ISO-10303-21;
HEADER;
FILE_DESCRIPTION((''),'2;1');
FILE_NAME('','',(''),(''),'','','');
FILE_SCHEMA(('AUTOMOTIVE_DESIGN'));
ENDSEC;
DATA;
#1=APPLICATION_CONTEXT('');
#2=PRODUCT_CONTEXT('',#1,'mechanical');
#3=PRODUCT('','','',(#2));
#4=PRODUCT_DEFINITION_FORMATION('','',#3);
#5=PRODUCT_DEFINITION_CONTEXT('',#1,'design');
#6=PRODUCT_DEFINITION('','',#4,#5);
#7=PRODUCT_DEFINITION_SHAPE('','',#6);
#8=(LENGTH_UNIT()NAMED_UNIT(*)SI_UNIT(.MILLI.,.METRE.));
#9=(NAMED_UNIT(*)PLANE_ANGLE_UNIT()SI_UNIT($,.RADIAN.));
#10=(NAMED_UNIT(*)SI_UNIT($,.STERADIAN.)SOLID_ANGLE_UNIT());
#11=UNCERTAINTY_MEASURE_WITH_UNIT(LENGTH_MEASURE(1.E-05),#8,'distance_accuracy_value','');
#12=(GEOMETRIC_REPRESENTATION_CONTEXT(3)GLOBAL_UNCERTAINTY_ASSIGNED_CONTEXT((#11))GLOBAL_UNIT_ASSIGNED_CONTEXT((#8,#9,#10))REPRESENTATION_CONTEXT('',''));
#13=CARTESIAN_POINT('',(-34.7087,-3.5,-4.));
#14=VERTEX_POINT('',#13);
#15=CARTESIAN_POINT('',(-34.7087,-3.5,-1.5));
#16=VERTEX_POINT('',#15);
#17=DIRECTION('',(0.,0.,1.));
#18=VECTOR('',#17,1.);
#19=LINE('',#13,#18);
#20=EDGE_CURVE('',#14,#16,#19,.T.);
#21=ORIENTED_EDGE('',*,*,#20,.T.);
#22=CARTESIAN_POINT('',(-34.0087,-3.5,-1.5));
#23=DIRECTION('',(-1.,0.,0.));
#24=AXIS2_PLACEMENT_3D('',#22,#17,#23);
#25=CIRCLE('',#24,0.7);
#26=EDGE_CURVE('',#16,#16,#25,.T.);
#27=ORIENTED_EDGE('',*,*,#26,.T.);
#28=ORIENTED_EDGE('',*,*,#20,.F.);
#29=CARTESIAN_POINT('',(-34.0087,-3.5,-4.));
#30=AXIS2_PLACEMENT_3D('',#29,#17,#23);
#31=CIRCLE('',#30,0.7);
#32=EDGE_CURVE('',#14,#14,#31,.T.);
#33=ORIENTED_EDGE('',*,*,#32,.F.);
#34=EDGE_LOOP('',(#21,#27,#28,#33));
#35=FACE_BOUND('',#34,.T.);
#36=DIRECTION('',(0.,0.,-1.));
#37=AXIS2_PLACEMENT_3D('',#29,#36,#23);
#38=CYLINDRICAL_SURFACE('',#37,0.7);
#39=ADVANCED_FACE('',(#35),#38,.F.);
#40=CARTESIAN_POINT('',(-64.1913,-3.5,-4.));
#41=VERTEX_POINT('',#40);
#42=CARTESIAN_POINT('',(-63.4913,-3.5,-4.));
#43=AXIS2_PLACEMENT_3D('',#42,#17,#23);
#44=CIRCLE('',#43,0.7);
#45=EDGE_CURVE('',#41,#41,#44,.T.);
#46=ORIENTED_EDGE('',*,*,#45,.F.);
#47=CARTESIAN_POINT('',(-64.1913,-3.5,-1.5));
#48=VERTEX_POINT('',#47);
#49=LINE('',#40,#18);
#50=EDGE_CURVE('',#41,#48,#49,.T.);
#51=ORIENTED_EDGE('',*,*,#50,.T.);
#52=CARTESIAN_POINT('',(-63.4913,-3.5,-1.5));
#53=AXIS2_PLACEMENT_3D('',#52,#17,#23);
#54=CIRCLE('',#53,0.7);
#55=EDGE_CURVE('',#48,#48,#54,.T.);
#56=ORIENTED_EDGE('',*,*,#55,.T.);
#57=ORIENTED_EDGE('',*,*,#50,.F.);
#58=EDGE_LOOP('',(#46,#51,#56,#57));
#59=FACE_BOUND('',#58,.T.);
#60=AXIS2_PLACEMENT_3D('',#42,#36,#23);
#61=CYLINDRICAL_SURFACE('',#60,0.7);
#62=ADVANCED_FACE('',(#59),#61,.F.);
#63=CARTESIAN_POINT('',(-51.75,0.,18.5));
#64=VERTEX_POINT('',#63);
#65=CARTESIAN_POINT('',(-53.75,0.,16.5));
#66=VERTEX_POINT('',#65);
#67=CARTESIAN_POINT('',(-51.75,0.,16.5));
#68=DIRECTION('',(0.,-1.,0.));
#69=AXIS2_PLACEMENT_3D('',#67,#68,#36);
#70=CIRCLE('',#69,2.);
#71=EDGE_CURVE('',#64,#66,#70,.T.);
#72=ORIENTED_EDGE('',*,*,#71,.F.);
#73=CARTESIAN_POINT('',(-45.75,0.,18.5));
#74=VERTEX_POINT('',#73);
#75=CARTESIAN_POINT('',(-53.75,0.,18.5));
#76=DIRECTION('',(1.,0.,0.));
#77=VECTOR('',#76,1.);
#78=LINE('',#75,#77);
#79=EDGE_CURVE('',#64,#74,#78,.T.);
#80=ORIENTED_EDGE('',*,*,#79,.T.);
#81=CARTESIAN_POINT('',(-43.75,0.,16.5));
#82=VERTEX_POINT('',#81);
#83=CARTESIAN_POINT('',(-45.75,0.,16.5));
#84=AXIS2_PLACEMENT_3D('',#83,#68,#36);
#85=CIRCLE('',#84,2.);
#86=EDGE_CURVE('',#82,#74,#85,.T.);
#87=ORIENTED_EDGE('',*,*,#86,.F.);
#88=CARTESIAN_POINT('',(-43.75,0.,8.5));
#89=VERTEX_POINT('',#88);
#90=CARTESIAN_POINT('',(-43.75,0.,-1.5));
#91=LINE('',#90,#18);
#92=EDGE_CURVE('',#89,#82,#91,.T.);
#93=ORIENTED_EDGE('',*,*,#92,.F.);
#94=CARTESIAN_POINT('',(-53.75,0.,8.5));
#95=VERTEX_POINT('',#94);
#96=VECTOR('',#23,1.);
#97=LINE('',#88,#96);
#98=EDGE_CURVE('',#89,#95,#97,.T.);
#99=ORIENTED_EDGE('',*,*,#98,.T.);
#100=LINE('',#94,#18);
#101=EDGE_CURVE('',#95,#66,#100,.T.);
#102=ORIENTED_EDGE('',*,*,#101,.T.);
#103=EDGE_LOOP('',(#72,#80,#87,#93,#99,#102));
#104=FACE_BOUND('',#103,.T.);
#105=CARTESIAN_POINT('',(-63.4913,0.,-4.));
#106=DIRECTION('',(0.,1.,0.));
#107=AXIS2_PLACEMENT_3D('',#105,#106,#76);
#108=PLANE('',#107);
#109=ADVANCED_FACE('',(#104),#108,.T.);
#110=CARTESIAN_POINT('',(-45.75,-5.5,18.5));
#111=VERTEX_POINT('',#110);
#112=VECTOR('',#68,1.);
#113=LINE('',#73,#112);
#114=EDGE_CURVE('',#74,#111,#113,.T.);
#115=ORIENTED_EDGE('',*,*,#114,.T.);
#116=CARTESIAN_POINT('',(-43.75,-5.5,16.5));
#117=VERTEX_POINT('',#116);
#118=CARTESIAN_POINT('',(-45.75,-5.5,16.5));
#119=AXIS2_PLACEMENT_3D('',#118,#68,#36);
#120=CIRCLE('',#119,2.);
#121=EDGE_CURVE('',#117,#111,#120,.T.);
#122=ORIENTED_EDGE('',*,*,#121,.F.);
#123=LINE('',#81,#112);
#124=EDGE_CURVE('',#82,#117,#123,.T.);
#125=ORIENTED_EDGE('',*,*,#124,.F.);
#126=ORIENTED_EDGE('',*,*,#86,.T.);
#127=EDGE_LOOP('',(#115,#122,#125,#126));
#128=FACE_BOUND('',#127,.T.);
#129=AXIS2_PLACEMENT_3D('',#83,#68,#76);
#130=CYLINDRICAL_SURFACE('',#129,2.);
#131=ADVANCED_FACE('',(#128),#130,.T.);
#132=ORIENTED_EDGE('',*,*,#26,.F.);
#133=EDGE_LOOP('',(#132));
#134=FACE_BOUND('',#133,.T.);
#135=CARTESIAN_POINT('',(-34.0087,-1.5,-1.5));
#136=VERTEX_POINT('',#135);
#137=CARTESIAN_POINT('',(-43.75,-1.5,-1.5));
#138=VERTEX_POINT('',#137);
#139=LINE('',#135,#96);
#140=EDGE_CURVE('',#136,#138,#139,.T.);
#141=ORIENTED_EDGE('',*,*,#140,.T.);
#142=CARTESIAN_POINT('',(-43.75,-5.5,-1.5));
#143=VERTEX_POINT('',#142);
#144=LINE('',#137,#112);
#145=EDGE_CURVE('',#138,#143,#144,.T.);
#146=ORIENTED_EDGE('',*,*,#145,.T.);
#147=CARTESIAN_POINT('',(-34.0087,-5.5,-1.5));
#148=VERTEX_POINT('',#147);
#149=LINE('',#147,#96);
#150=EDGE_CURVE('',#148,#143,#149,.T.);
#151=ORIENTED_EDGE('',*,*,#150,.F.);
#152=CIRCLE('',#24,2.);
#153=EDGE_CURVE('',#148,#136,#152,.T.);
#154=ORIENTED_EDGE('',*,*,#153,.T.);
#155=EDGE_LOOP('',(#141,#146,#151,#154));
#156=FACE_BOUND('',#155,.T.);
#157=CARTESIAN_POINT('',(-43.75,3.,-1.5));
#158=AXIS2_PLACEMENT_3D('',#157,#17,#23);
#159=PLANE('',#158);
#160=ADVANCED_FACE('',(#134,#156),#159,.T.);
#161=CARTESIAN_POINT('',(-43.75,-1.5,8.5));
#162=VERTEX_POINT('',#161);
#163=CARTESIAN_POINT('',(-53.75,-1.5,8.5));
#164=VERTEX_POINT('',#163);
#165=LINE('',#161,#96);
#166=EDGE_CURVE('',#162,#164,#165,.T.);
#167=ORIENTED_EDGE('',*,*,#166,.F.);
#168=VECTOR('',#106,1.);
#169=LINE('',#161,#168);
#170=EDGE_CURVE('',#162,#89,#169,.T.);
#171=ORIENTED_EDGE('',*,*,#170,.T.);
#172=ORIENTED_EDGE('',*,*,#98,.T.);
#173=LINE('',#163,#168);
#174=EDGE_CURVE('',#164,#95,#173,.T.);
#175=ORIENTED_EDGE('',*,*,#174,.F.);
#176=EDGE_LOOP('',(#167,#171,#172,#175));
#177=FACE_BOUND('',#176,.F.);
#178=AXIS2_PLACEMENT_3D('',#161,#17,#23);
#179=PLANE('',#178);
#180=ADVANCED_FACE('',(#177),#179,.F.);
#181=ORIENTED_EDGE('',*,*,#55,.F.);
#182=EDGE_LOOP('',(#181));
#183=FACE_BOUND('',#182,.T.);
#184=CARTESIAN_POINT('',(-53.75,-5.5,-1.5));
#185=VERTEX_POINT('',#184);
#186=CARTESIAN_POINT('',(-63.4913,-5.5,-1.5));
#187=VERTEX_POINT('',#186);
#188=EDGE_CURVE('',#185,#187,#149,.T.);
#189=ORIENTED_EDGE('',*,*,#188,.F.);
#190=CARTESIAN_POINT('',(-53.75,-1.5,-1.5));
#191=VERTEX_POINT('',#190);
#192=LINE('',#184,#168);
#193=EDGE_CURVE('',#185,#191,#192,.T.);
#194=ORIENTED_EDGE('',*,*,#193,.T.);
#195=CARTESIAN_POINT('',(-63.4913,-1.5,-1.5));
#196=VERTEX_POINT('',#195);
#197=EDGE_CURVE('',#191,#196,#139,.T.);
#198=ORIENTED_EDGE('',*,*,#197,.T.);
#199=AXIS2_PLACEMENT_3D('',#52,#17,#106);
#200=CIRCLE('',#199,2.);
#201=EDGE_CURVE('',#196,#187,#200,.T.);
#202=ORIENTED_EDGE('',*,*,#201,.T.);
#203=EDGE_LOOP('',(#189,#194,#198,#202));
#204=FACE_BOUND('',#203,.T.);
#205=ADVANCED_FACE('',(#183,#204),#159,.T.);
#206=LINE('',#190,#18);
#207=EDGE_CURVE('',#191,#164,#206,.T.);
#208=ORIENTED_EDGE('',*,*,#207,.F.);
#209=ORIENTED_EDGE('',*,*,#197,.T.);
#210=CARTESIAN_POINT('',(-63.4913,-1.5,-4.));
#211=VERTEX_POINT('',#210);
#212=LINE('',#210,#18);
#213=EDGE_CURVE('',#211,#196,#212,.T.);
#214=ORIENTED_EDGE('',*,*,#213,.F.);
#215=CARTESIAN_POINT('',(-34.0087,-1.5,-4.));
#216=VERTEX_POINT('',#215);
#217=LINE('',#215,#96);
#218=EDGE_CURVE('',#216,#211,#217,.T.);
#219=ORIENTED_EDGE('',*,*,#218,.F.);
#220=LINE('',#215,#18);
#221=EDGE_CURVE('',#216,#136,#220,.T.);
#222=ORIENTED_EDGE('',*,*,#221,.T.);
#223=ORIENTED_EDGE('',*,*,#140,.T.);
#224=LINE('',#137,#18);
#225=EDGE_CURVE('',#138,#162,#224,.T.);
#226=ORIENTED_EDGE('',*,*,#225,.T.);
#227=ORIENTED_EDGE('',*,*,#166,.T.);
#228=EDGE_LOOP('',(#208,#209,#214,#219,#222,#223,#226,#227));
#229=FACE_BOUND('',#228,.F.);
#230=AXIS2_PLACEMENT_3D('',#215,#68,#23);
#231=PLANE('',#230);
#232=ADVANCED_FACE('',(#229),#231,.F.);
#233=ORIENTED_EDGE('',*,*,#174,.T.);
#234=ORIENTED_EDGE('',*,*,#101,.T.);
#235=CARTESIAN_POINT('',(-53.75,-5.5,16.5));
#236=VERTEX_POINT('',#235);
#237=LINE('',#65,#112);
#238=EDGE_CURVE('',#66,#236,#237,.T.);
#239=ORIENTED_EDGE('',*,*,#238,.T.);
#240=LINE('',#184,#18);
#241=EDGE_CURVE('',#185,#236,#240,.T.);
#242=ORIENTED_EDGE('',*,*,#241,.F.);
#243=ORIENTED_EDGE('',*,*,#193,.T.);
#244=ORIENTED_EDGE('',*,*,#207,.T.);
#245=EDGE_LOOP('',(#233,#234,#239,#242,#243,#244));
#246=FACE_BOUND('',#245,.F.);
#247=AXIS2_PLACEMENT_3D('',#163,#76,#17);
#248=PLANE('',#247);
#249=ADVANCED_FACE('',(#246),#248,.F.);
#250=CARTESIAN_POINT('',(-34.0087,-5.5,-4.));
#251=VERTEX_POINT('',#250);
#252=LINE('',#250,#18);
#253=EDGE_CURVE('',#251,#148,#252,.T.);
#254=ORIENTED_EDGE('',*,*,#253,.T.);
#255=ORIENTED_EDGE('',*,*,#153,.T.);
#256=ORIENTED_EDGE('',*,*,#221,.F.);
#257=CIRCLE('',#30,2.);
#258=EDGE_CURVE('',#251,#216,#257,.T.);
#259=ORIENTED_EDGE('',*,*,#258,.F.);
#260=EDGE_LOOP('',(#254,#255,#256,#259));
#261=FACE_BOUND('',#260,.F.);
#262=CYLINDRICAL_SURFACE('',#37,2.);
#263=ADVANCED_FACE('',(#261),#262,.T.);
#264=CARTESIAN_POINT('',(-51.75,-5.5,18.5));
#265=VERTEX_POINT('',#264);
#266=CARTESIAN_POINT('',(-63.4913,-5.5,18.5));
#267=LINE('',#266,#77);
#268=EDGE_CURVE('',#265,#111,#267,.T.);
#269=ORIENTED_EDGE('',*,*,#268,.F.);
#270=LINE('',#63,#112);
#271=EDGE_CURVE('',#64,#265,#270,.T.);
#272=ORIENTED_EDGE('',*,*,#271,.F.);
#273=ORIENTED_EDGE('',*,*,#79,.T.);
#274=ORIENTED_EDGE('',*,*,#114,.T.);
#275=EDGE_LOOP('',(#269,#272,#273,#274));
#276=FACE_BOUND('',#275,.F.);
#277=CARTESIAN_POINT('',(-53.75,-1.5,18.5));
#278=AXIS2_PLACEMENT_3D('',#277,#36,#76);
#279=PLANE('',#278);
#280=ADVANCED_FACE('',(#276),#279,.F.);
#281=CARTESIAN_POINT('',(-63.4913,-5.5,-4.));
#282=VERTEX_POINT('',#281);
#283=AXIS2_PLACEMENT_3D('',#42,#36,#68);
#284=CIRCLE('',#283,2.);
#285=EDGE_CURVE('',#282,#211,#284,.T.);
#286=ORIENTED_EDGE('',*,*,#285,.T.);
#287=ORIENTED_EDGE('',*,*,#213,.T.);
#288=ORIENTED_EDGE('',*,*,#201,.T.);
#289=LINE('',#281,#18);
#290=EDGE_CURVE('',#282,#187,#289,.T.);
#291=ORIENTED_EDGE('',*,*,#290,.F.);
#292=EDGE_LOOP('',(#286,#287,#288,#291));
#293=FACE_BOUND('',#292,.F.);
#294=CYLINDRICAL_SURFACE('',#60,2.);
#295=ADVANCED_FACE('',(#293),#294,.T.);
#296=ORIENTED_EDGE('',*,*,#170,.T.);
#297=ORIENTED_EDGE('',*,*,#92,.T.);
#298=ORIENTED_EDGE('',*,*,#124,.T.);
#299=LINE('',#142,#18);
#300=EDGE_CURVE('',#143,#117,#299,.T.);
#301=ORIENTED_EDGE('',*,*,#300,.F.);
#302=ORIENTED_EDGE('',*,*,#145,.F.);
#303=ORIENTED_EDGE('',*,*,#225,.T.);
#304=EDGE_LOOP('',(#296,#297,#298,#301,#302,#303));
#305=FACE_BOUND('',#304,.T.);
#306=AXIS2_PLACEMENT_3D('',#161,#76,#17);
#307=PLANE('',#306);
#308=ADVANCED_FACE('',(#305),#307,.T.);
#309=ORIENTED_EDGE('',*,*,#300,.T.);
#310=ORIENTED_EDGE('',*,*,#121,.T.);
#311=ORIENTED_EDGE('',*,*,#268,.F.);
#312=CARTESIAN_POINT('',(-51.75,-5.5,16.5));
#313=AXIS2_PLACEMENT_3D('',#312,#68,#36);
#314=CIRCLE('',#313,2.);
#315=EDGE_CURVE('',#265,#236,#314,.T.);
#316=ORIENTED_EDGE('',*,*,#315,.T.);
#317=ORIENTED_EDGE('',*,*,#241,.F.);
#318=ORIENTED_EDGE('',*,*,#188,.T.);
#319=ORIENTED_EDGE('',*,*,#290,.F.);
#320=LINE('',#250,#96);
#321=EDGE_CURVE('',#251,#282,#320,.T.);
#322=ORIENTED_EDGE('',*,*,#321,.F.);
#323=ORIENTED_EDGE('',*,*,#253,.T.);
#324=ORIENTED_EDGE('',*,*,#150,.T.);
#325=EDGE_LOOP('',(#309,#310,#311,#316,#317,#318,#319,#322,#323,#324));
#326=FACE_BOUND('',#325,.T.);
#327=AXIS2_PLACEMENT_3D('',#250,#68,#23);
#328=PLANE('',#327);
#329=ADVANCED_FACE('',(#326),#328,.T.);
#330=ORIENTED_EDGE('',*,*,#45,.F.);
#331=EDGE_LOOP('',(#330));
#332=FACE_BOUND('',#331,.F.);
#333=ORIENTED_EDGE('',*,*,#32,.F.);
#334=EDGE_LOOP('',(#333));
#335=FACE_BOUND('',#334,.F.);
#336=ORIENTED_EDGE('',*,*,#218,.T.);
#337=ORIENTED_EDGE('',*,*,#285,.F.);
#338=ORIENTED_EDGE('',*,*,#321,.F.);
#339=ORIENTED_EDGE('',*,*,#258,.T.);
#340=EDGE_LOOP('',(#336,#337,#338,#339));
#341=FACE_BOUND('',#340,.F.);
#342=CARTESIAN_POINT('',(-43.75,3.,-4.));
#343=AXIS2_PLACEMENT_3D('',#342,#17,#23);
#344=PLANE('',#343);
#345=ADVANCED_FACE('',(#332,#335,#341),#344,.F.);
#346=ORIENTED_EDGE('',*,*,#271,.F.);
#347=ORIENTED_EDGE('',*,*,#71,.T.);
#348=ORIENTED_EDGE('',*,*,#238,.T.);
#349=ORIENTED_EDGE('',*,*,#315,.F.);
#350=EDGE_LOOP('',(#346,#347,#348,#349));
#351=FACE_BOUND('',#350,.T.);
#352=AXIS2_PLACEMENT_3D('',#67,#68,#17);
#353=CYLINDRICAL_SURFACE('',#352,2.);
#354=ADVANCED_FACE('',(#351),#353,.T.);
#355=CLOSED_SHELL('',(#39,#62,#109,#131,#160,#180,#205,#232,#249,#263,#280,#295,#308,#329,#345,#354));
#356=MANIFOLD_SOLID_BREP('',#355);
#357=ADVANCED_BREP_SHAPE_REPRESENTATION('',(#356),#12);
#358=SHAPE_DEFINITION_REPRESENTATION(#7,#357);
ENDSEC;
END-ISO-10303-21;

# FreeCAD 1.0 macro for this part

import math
import FreeCAD as App
import Part
import Sketcher
from FreeCAD import Vector
Q = App.Units.Quantity


def edges_at(feature, points):
    """Names of the edges that pass closest to the given points."""
    edges = feature.Shape.Edges
    near = lambda p: min(range(len(edges)), key=lambda i: edges[i].distToShape(Part.Vertex(*p))[0])
    return sorted({f"Edge{near(p) + 1}" for p in points})

doc = App.newDocument("Part")
body = doc.addObject("PartDesign::Body", "Body")

# Sketch on XY plane
sketch1 = body.newObject("Sketcher::SketchObject", "Sketch")
sketch1.AttachmentSupport = (doc.getObject("XY_Plane"), [""])
sketch1.MapMode = "FlatFace"
sketch1.AttachmentOffset = App.Placement(Vector(0, 0, -4), App.Rotation())
sketch1.addGeometry([
    Part.ArcOfCircle(Part.Circle(Vector(-34, -3.5, 0), Vector(0, 0, 1), 2), math.radians(-90), math.radians(90)),  # 0
    Part.LineSegment(Vector(-34, -1.5, 0), Vector(-63.5, -1.5, 0)),  # 1
    Part.ArcOfCircle(Part.Circle(Vector(-63.5, -3.5, 0), Vector(0, 0, 1), 2), math.radians(90), math.radians(270)),  # 2
    Part.LineSegment(Vector(-63.5, -5.5, 0), Vector(-34, -5.5, 0)),  # 3
    Part.Circle(Vector(-34, -3.5, 0), Vector(0, 0, 1), 0.7),  # 4
    Part.Circle(Vector(-63.5, -3.5, 0), Vector(0, 0, 1), 0.7),  # 5
], False)
sketch1.addConstraint([
    Sketcher.Constraint("Tangent", 0, 2, 1, 1),
    Sketcher.Constraint("Tangent", 1, 2, 2, 1),
    Sketcher.Constraint("Tangent", 2, 2, 3, 1),
    Sketcher.Constraint("Tangent", 3, 2, 0, 1),
    Sketcher.Constraint("Horizontal", 1),
    Sketcher.Constraint("Horizontal", 3),
    Sketcher.Constraint("Coincident", 4, 3, 0, 3),
    Sketcher.Constraint("Coincident", 5, 3, 2, 3),
    Sketcher.Constraint("Equal", 4, 5),
    Sketcher.Constraint("Radius", 0, Q("2 mm")),
    Sketcher.Constraint("Diameter", 4, Q("1.4 mm")),
    Sketcher.Constraint("DistanceY", 0, 3, -1, 1, Q("3.5 mm")),
    Sketcher.Constraint("DistanceX", 1, 2, 1, 1, Q("29.4826 mm")),
    Sketcher.Constraint("DistanceX", 0, 3, -1, 1, Q("34.0087 mm")),
])
pad1 = body.newObject("PartDesign::Pad", "Pad")
pad1.Profile = sketch1
pad1.Length = 2.5

# Sketch on XY plane
sketch2 = body.newObject("Sketcher::SketchObject", "Sketch001")
sketch2.AttachmentSupport = (doc.getObject("XY_Plane"), [""])
sketch2.MapMode = "FlatFace"
sketch2.AttachmentOffset = App.Placement(Vector(0, 0, -1.5), App.Rotation())
sketch2.addGeometry([
    Part.LineSegment(Vector(-43.8, -5.5, 0), Vector(-43.8, -1.5, 0)),
    Part.LineSegment(Vector(-43.8, -1.5, 0), Vector(-53.8, -1.5, 0)),
    Part.LineSegment(Vector(-53.8, -1.5, 0), Vector(-53.8, -5.5, 0)),
    Part.LineSegment(Vector(-53.8, -5.5, 0), Vector(-43.8, -5.5, 0)),
], False)
sketch2.addConstraint([
    Sketcher.Constraint("Coincident", 0, 2, 1, 1),
    Sketcher.Constraint("Coincident", 1, 2, 2, 1),
    Sketcher.Constraint("Coincident", 2, 2, 3, 1),
    Sketcher.Constraint("Coincident", 3, 2, 0, 1),
    Sketcher.Constraint("Vertical", 0),
    Sketcher.Constraint("Horizontal", 1),
    Sketcher.Constraint("Vertical", 2),
    Sketcher.Constraint("Horizontal", 3),
    Sketcher.Constraint("DistanceX", 1, 2, 1, 1, Q("10 mm")),
    Sketcher.Constraint("DistanceY", 0, 1, 0, 2, Q("4 mm")),
    Sketcher.Constraint("DistanceY", 0, 2, -1, 1, Q("1.5 mm")),
    Sketcher.Constraint("DistanceX", 0, 2, -1, 1, Q("43.75 mm")),
])
pad2 = body.newObject("PartDesign::Pad", "Pad001")
pad2.Profile = sketch2
pad2.Length = 20

# Sketch on XZ plane
sketch3 = body.newObject("Sketcher::SketchObject", "Sketch002")
sketch3.AttachmentSupport = (doc.getObject("XZ_Plane"), [""])
sketch3.MapMode = "FlatFace"
sketch3.AttachmentOffset = App.Placement(Vector(0, 0, 1.5), App.Rotation())
sketch3.addGeometry([
    Part.LineSegment(Vector(-44, 18, 0), Vector(-44, 8, 0)),
    Part.LineSegment(Vector(-44, 8, 0), Vector(-54, 8, 0)),
    Part.LineSegment(Vector(-54, 8, 0), Vector(-54, 18, 0)),
    Part.LineSegment(Vector(-54, 18, 0), Vector(-44, 18, 0)),
], False)
sketch3.addConstraint([
    Sketcher.Constraint("Coincident", 0, 2, 1, 1),
    Sketcher.Constraint("Coincident", 1, 2, 2, 1),
    Sketcher.Constraint("Coincident", 2, 2, 3, 1),
    Sketcher.Constraint("Coincident", 3, 2, 0, 1),
    Sketcher.Constraint("Vertical", 0),
    Sketcher.Constraint("Horizontal", 1),
    Sketcher.Constraint("Vertical", 2),
    Sketcher.Constraint("Horizontal", 3),
    Sketcher.Constraint("Equal", 3, 0),
    Sketcher.Constraint("DistanceX", 1, 2, 1, 1, Q("10 mm")),
    Sketcher.Constraint("DistanceY", -1, 1, 0, 2, Q("8.5 mm")),
    Sketcher.Constraint("DistanceX", 0, 2, -1, 1, Q("43.75 mm")),
])
pad3 = body.newObject("PartDesign::Pad", "Pad002")
pad3.Profile = sketch3
pad3.Length = 1.5
pad3.Reversed = True
doc.recompute()

fillet = body.newObject("PartDesign::Fillet", "Fillet")
fillet.Base = (pad3, edges_at(pad3, [(-53.75, -2.75, 18.5), (-43.75, -2.75, 18.5)]))
fillet.Radius = 2

doc.recompute()
